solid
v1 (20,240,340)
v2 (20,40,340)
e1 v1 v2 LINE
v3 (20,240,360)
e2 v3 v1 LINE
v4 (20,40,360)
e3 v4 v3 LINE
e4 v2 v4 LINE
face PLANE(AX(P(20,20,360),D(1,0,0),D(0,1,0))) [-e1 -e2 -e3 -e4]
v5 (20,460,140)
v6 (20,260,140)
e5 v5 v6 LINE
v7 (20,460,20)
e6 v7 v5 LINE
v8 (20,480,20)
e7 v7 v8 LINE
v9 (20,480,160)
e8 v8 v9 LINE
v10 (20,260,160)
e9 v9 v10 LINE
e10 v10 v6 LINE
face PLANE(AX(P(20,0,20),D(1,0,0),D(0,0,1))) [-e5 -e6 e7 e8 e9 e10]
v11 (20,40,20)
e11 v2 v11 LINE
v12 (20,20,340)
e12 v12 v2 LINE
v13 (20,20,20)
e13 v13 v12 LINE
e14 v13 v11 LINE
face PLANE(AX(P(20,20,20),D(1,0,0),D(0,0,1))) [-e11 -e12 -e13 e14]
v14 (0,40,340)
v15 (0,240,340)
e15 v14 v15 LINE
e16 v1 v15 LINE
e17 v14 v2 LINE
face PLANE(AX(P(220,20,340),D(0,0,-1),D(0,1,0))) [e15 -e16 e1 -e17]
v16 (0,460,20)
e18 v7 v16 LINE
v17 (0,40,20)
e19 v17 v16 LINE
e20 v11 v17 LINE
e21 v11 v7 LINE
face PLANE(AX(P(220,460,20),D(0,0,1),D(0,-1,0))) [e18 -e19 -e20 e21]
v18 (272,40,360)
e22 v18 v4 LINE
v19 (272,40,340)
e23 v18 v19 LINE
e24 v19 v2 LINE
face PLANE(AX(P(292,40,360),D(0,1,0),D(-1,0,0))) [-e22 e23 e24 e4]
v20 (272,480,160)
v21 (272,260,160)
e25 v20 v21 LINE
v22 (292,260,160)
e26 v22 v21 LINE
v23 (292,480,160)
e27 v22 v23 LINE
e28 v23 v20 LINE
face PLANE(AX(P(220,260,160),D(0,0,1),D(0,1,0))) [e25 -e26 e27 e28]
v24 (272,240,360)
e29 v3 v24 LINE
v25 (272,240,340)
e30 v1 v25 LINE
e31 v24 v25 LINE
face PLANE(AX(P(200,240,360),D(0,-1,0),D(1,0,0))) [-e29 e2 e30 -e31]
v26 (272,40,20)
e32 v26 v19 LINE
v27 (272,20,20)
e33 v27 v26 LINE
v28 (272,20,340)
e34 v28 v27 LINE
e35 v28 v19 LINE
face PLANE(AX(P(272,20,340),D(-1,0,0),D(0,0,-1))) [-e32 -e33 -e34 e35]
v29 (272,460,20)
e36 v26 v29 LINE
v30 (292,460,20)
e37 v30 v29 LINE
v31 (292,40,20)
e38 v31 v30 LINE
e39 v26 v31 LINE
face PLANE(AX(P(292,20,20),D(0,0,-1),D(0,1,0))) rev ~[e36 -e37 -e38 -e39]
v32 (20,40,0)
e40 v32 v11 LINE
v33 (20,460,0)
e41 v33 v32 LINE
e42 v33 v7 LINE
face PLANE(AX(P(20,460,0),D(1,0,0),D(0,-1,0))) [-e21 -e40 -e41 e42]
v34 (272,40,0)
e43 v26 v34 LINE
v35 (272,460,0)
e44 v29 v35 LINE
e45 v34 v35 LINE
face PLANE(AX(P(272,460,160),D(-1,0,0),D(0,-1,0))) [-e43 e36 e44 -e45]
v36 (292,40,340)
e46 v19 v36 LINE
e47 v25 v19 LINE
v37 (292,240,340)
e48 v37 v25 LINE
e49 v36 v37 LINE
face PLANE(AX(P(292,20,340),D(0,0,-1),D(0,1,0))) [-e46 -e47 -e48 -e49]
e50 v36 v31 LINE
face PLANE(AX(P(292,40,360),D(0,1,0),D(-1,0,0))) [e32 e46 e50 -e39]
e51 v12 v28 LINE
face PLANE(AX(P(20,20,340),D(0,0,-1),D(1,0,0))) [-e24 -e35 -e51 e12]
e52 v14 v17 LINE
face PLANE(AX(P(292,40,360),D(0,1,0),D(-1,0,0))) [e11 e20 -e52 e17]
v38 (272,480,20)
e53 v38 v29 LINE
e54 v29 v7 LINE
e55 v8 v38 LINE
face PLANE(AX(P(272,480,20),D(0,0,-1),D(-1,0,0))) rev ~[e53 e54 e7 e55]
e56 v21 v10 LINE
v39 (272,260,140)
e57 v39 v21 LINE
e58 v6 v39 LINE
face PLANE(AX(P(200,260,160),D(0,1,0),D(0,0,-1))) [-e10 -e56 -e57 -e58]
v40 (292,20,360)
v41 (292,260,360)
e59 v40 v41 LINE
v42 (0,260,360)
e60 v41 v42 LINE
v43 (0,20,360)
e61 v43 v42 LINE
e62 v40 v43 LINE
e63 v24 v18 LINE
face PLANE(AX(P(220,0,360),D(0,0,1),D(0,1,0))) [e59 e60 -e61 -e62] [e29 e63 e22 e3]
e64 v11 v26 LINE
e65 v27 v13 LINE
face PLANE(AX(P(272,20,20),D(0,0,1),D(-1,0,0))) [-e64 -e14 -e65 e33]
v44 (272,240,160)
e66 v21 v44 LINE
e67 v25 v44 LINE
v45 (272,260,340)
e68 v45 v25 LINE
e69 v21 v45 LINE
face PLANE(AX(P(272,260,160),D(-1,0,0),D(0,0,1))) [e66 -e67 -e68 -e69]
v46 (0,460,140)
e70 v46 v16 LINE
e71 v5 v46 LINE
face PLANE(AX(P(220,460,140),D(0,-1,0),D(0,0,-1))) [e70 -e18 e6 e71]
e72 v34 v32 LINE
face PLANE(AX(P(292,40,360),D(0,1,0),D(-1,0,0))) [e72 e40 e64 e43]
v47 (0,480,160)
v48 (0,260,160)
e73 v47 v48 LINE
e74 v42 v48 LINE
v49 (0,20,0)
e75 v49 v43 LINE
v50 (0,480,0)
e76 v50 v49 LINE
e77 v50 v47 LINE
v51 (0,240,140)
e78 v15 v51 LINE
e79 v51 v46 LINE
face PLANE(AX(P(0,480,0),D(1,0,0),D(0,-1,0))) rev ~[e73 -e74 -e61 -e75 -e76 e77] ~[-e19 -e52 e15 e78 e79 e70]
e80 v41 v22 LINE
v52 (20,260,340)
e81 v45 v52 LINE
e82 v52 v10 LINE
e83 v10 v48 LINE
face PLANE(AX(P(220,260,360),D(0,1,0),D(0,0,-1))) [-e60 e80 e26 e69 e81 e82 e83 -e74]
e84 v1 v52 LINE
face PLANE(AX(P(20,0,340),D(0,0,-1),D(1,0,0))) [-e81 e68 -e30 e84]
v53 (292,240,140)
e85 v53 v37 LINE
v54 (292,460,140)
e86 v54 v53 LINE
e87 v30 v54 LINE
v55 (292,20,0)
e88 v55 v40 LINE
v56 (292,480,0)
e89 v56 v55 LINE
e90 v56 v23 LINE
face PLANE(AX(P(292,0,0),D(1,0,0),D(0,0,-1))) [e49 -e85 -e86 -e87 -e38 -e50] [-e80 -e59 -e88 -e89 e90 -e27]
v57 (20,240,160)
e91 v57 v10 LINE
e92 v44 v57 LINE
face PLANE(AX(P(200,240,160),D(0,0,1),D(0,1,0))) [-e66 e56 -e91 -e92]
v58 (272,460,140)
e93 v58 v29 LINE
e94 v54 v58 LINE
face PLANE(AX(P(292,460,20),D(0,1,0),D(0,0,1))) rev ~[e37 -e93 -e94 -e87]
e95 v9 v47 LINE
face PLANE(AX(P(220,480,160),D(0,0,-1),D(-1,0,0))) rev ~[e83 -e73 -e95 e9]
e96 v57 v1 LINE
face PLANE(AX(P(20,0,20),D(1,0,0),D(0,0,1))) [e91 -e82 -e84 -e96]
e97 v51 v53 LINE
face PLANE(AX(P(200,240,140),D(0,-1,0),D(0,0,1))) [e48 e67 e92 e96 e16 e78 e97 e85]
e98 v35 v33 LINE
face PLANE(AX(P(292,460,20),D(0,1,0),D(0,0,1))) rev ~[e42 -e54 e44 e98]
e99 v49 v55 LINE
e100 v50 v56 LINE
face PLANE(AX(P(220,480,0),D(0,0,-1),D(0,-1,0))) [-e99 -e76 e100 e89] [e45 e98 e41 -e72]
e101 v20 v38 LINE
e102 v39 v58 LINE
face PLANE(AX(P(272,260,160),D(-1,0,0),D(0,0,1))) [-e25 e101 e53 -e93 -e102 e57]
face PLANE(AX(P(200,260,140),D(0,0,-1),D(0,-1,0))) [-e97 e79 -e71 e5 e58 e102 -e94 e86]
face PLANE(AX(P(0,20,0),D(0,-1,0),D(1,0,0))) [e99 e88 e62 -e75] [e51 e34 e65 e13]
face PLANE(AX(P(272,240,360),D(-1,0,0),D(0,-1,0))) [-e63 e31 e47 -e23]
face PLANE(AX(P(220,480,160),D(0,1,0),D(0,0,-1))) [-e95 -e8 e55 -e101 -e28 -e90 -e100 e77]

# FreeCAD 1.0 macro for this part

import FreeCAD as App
import Part
import Sketcher

doc = App.newDocument("Part")
body = doc.addObject("PartDesign::Body", "Body")

# Sketch on XY plane
sketch1 = doc.addObject("Sketcher::SketchObject", "Sketch")
body.addObject(sketch1)
sketch1.AttachmentSupport = (doc.XY_Plane, [""])
sketch1.MapMode = "FlatFace"
sketch1.addGeometry(Part.LineSegment(App.Vector(0, 480, 0), App.Vector(0, 0, 0)), False)
sketch1.addGeometry(Part.LineSegment(App.Vector(0, 0, 0), App.Vector(220, 0, 0)), False)
sketch1.addGeometry(Part.LineSegment(App.Vector(220, 0, 0), App.Vector(220, 480, 0)), False)
sketch1.addGeometry(Part.LineSegment(App.Vector(220, 480, 0), App.Vector(0, 480, 0)), False)
sketch1.addConstraint(Sketcher.Constraint("Coincident", 0, 2, 1, 1))
sketch1.addConstraint(Sketcher.Constraint("Coincident", 1, 2, 2, 1))
sketch1.addConstraint(Sketcher.Constraint("Coincident", 2, 2, 3, 1))
sketch1.addConstraint(Sketcher.Constraint("Coincident", 3, 2, 0, 1))
sketch1.addConstraint(Sketcher.Constraint("Vertical", 0))
sketch1.addConstraint(Sketcher.Constraint("Horizontal", 1))
sketch1.addConstraint(Sketcher.Constraint("Vertical", 2))
sketch1.addConstraint(Sketcher.Constraint("Horizontal", 3))
sketch1.addConstraint(Sketcher.Constraint("Coincident", 0, 2, -1, 1))
sketch1.addConstraint(Sketcher.Constraint("DistanceX", 1, 1, 1, 2, 220.0))
sketch1.addConstraint(Sketcher.Constraint("DistanceY", 0, 2, 0, 1, 480.0))
pad1 = doc.addObject("PartDesign::Pad", "Pad")
body.addObject(pad1)
pad1.Profile = sketch1
pad1.Length = 360

# Sketch on XZ plane
sketch2 = doc.addObject("Sketcher::SketchObject", "Sketch001")
body.addObject(sketch2)
sketch2.AttachmentSupport = (doc.XZ_Plane, [""])
sketch2.MapMode = "FlatFace"
sketch2.AttachmentOffset = App.Placement(App.Vector(0, 0, -480), App.Rotation())
sketch2.addGeometry(Part.LineSegment(App.Vector(220, 360, 0), App.Vector(220, 160, 0)), False)
sketch2.addGeometry(Part.LineSegment(App.Vector(220, 160, 0), App.Vector(0, 160, 0)), False)
sketch2.addGeometry(Part.LineSegment(App.Vector(0, 160, 0), App.Vector(0, 360, 0)), False)
sketch2.addGeometry(Part.LineSegment(App.Vector(0, 360, 0), App.Vector(220, 360, 0)), False)
sketch2.addConstraint(Sketcher.Constraint("Coincident", 0, 2, 1, 1))
sketch2.addConstraint(Sketcher.Constraint("Coincident", 1, 2, 2, 1))
sketch2.addConstraint(Sketcher.Constraint("Coincident", 2, 2, 3, 1))
sketch2.addConstraint(Sketcher.Constraint("Coincident", 3, 2, 0, 1))
sketch2.addConstraint(Sketcher.Constraint("Vertical", 0))
sketch2.addConstraint(Sketcher.Constraint("Horizontal", 1))
sketch2.addConstraint(Sketcher.Constraint("Vertical", 2))
sketch2.addConstraint(Sketcher.Constraint("Horizontal", 3))
sketch2.addConstraint(Sketcher.Constraint("PointOnObject", 1, 2, -2))
sketch2.addConstraint(Sketcher.Constraint("DistanceY", -1, 1, 0, 2, 160.0))
sketch2.addConstraint(Sketcher.Constraint("DistanceX", 1, 2, 1, 1, 220.0))
sketch2.addConstraint(Sketcher.Constraint("DistanceY", 0, 2, 0, 1, 200.0))
pocket1 = doc.addObject("PartDesign::Pocket", "Pocket")
body.addObject(pocket1)
pocket1.Profile = sketch2
pocket1.Length = 220
pocket1.Reversed = True

# Sketch on YZ plane
sketch3 = doc.addObject("Sketcher::SketchObject", "Sketch002")
body.addObject(sketch3)
sketch3.AttachmentSupport = (doc.YZ_Plane, [""])
sketch3.MapMode = "FlatFace"
sketch3.AttachmentOffset = App.Placement(App.Vector(0, 0, 220), App.Rotation())
sketch3.addGeometry(Part.LineSegment(App.Vector(20, 20, 0), App.Vector(460, 20, 0)), False)
sketch3.addGeometry(Part.LineSegment(App.Vector(460, 20, 0), App.Vector(460, 140, 0)), False)
sketch3.addGeometry(Part.LineSegment(App.Vector(460, 140, 0), App.Vector(240, 140, 0)), False)
sketch3.addGeometry(Part.LineSegment(App.Vector(240, 140, 0), App.Vector(240, 340, 0)), False)
sketch3.addGeometry(Part.LineSegment(App.Vector(240, 340, 0), App.Vector(20, 340, 0)), False)
sketch3.addGeometry(Part.LineSegment(App.Vector(20, 340, 0), App.Vector(20, 20, 0)), False)
sketch3.addConstraint(Sketcher.Constraint("Coincident", 0, 2, 1, 1))
sketch3.addConstraint(Sketcher.Constraint("Coincident", 1, 2, 2, 1))
sketch3.addConstraint(Sketcher.Constraint("Coincident", 2, 2, 3, 1))
sketch3.addConstraint(Sketcher.Constraint("Coincident", 3, 2, 4, 1))
sketch3.addConstraint(Sketcher.Constraint("Coincident", 4, 2, 5, 1))
sketch3.addConstraint(Sketcher.Constraint("Coincident", 5, 2, 0, 1))
sketch3.addConstraint(Sketcher.Constraint("Horizontal", 0))
sketch3.addConstraint(Sketcher.Constraint("Vertical", 1))
sketch3.addConstraint(Sketcher.Constraint("Horizontal", 2))
sketch3.addConstraint(Sketcher.Constraint("Vertical", 3))
sketch3.addConstraint(Sketcher.Constraint("Horizontal", 4))
sketch3.addConstraint(Sketcher.Constraint("Vertical", 5))
sketch3.addConstraint(Sketcher.Constraint("Equal", 2, 4))
sketch3.addConstraint(Sketcher.Constraint("DistanceY", -1, 1, 0, 2, 20.0))
sketch3.addConstraint(Sketcher.Constraint("DistanceX", -1, 1, 4, 2, 20.0))
sketch3.addConstraint(Sketcher.Constraint("DistanceX", 0, 1, 0, 2, 440.0))
sketch3.addConstraint(Sketcher.Constraint("DistanceY", 1, 1, 1, 2, 120.0))
sketch3.addConstraint(Sketcher.Constraint("DistanceY", 3, 1, 3, 2, 200.0))
pocket2 = doc.addObject("PartDesign::Pocket", "Pocket001")
body.addObject(pocket2)
pocket2.Profile = sketch3
pocket2.Length = 220

# Sketch on XY plane
sketch4 = doc.addObject("Sketcher::SketchObject", "Sketch003")
body.addObject(sketch4)
sketch4.AttachmentSupport = (doc.XY_Plane, [""])
sketch4.MapMode = "FlatFace"
sketch4.AttachmentOffset = App.Placement(App.Vector(0, 0, 360), App.Rotation())
sketch4.addGeometry(Part.LineSegment(App.Vector(200, 240, 0), App.Vector(20, 240, 0)), False)
sketch4.addGeometry(Part.LineSegment(App.Vector(20, 240, 0), App.Vector(20, 20, 0)), False)
sketch4.addGeometry(Part.LineSegment(App.Vector(20, 20, 0), App.Vector(200, 20, 0)), False)
sketch4.addGeometry(Part.LineSegment(App.Vector(200, 20, 0), App.Vector(200, 240, 0)), False)
sketch4.addConstraint(Sketcher.Constraint("Coincident", 0, 2, 1, 1))
sketch4.addConstraint(Sketcher.Constraint("Coincident", 1, 2, 2, 1))
sketch4.addConstraint(Sketcher.Constraint("Coincident", 2, 2, 3, 1))
sketch4.addConstraint(Sketcher.Constraint("Coincident", 3, 2, 0, 1))
sketch4.addConstraint(Sketcher.Constraint("Horizontal", 0))
sketch4.addConstraint(Sketcher.Constraint("Vertical", 1))
sketch4.addConstraint(Sketcher.Constraint("Horizontal", 2))
sketch4.addConstraint(Sketcher.Constraint("Vertical", 3))
sketch4.addConstraint(Sketcher.Constraint("DistanceX", -1, 1, 0, 2, 20.0))
sketch4.addConstraint(Sketcher.Constraint("DistanceY", -1, 1, 1, 2, 20.0))
sketch4.addConstraint(Sketcher.Constraint("DistanceX", 0, 2, 0, 1, 180.0))
sketch4.addConstraint(Sketcher.Constraint("DistanceY", 1, 2, 1, 1, 220.0))
pocket3 = doc.addObject("PartDesign::Pocket", "Pocket002")
body.addObject(pocket3)
pocket3.Profile = sketch4
pocket3.Length = 600

# Sketch on XZ plane
sketch5 = doc.addObject("Sketcher::SketchObject", "Sketch004")
body.addObject(sketch5)
sketch5.AttachmentSupport = (doc.XZ_Plane, [""])
sketch5.MapMode = "FlatFace"
sketch5.addGeometry(Part.LineSegment(App.Vector(200, 340, 0), App.Vector(20, 340, 0)), False)
sketch5.addGeometry(Part.LineSegment(App.Vector(20, 340, 0), App.Vector(20, 20, 0)), False)
sketch5.addGeometry(Part.LineSegment(App.Vector(20, 20, 0), App.Vector(200, 20, 0)), False)
sketch5.addGeometry(Part.LineSegment(App.Vector(200, 20, 0), App.Vector(200, 340, 0)), False)
sketch5.addConstraint(Sketcher.Constraint("Coincident", 0, 2, 1, 1))
sketch5.addConstraint(Sketcher.Constraint("Coincident", 1, 2, 2, 1))
sketch5.addConstraint(Sketcher.Constraint("Coincident", 2, 2, 3, 1))
sketch5.addConstraint(Sketcher.Constraint("Coincident", 3, 2, 0, 1))
sketch5.addConstraint(Sketcher.Constraint("Horizontal", 0))
sketch5.addConstraint(Sketcher.Constraint("Vertical", 1))
sketch5.addConstraint(Sketcher.Constraint("Horizontal", 2))
sketch5.addConstraint(Sketcher.Constraint("Vertical", 3))
sketch5.addConstraint(Sketcher.Constraint("DistanceX", 0, 2, 0, 1, 180.0))
sketch5.addConstraint(Sketcher.Constraint("DistanceY", 1, 2, 1, 1, 320.0))
sketch5.addConstraint(Sketcher.Constraint("DistanceX", -1, 1, 0, 2, 20.0))
sketch5.addConstraint(Sketcher.Constraint("DistanceY", -1, 1, 0, 2, 340.0))
pocket4 = doc.addObject("PartDesign::Pocket", "Pocket003")
body.addObject(pocket4)
pocket4.Profile = sketch5
pocket4.Length = 900

# Sketch on XY plane
sketch6 = doc.addObject("Sketcher::SketchObject", "Sketch005")
body.addObject(sketch6)
sketch6.AttachmentSupport = (doc.XY_Plane, [""])
sketch6.MapMode = "FlatFace"
sketch6.addGeometry(Part.LineSegment(App.Vector(20, 240, 0), App.Vector(20, 460, 0)), False)
sketch6.addGeometry(Part.LineSegment(App.Vector(20, 460, 0), App.Vector(200, 460, 0)), False)
sketch6.addGeometry(Part.LineSegment(App.Vector(200, 460, 0), App.Vector(200, 240, 0)), False)
sketch6.addGeometry(Part.LineSegment(App.Vector(200, 240, 0), App.Vector(20, 240, 0)), False)
sketch6.addConstraint(Sketcher.Constraint("Coincident", 0, 2, 1, 1))
sketch6.addConstraint(Sketcher.Constraint("Coincident", 1, 2, 2, 1))
sketch6.addConstraint(Sketcher.Constraint("Coincident", 2, 2, 3, 1))
sketch6.addConstraint(Sketcher.Constraint("Coincident", 3, 2, 0, 1))
sketch6.addConstraint(Sketcher.Constraint("Vertical", 0))
sketch6.addConstraint(Sketcher.Constraint("Horizontal", 1))
sketch6.addConstraint(Sketcher.Constraint("Vertical", 2))
sketch6.addConstraint(Sketcher.Constraint("Horizontal", 3))
sketch6.addConstraint(Sketcher.Constraint("DistanceX", 1, 1, 1, 2, 180.0))
sketch6.addConstraint(Sketcher.Constraint("DistanceY", 0, 1, 0, 2, 220.0))
sketch6.addConstraint(Sketcher.Constraint("DistanceX", -1, 1, 0, 2, 20.0))
sketch6.addConstraint(Sketcher.Constraint("DistanceY", -1, 1, 0, 2, 460.0))
pocket5 = doc.addObject("PartDesign::Pocket", "Pocket004")
body.addObject(pocket5)
pocket5.Profile = sketch6
pocket5.Length = 80
pocket5.Reversed = True

# Sketch on YZ plane
sketch7 = doc.addObject("Sketcher::SketchObject", "Sketch006")
body.addObject(sketch7)
sketch7.AttachmentSupport = (doc.YZ_Plane, [""])
sketch7.MapMode = "FlatFace"
sketch7.AttachmentOffset = App.Placement(App.Vector(0, 0, 20), App.Rotation())
sketch7.addGeometry(Part.LineSegment(App.Vector(240, 140, 0), App.Vector(260, 140, 0)), False)
sketch7.addGeometry(Part.LineSegment(App.Vector(260, 140, 0), App.Vector(260, 160, 0)), False)
sketch7.addGeometry(Part.LineSegment(App.Vector(260, 160, 0), App.Vector(240, 160, 0)), False)
sketch7.addGeometry(Part.LineSegment(App.Vector(240, 160, 0), App.Vector(240, 140, 0)), False)
sketch7.addConstraint(Sketcher.Constraint("Coincident", 0, 2, 1, 1))
sketch7.addConstraint(Sketcher.Constraint("Coincident", 1, 2, 2, 1))
sketch7.addConstraint(Sketcher.Constraint("Coincident", 2, 2, 3, 1))
sketch7.addConstraint(Sketcher.Constraint("Coincident", 3, 2, 0, 1))
sketch7.addConstraint(Sketcher.Constraint("Horizontal", 0))
sketch7.addConstraint(Sketcher.Constraint("Vertical", 1))
sketch7.addConstraint(Sketcher.Constraint("Horizontal", 2))
sketch7.addConstraint(Sketcher.Constraint("Vertical", 3))
sketch7.addConstraint(Sketcher.Constraint("Equal", 2, 1))
sketch7.addConstraint(Sketcher.Constraint("DistanceX", 0, 1, 0, 2, 20.0))
sketch7.addConstraint(Sketcher.Constraint("DistanceX", -1, 1, 0, 2, 260.0))
sketch7.addConstraint(Sketcher.Constraint("DistanceY", -1, 1, 0, 2, 140.0))
pad2 = doc.addObject("PartDesign::Pad", "Pad001")
body.addObject(pad2)
pad2.Profile = sketch7
pad2.Length = 180

# Sketch on YZ plane
sketch8 = doc.addObject("Sketcher::SketchObject", "Sketch007")
body.addObject(sketch8)
sketch8.AttachmentSupport = (doc.YZ_Plane, [""])
sketch8.MapMode = "FlatFace"
sketch8.AttachmentOffset = App.Placement(App.Vector(0, 0, 220), App.Rotation())
sketch8.addGeometry(Part.LineSegment(App.Vector(260, 360, 0), App.Vector(0, 360, 0)), False)
sketch8.addGeometry(Part.LineSegment(App.Vector(0, 360, 0), App.Vector(0, 0, 0)), False)
sketch8.addGeometry(Part.LineSegment(App.Vector(0, 0, 0), App.Vector(480, 0, 0)), False)
sketch8.addGeometry(Part.LineSegment(App.Vector(480, 0, 0), App.Vector(480, 160, 0)), False)
sketch8.addGeometry(Part.LineSegment(App.Vector(480, 160, 0), App.Vector(260, 160, 0)), False)
sketch8.addGeometry(Part.LineSegment(App.Vector(260, 160, 0), App.Vector(260, 360, 0)), False)
sketch8.addConstraint(Sketcher.Constraint("Coincident", 0, 2, 1, 1))
sketch8.addConstraint(Sketcher.Constraint("Coincident", 1, 2, 2, 1))
sketch8.addConstraint(Sketcher.Constraint("Coincident", 2, 2, 3, 1))
sketch8.addConstraint(Sketcher.Constraint("Coincident", 3, 2, 4, 1))
sketch8.addConstraint(Sketcher.Constraint("Coincident", 4, 2, 5, 1))
sketch8.addConstraint(Sketcher.Constraint("Coincident", 5, 2, 0, 1))
sketch8.addConstraint(Sketcher.Constraint("Horizontal", 0))
sketch8.addConstraint(Sketcher.Constraint("Vertical", 1))
sketch8.addConstraint(Sketcher.Constraint("Horizontal", 2))
sketch8.addConstraint(Sketcher.Constraint("Vertical", 3))
sketch8.addConstraint(Sketcher.Constraint("Horizontal", 4))
sketch8.addConstraint(Sketcher.Constraint("Vertical", 5))
sketch8.addConstraint(Sketcher.Constraint("Coincident", 1, 2, -1, 1))
sketch8.addConstraint(Sketcher.Constraint("DistanceX", 0, 2, 0, 1, 260.0))
sketch8.addConstraint(Sketcher.Constraint("DistanceX", 2, 1, 2, 2, 480.0))
sketch8.addConstraint(Sketcher.Constraint("DistanceY", 1, 2, 1, 1, 360.0))
sketch8.addConstraint(Sketcher.Constraint("DistanceY", 3, 1, 3, 2, 160.0))
pad3 = doc.addObject("PartDesign::Pad", "Pad002")
body.addObject(pad3)
pad3.Profile = sketch8
pad3.Length = 72

# Sketch on YZ plane
sketch9 = doc.addObject("Sketcher::SketchObject", "Sketch008")
body.addObject(sketch9)
sketch9.AttachmentSupport = (doc.YZ_Plane, [""])
sketch9.MapMode = "FlatFace"
sketch9.AttachmentOffset = App.Placement(App.Vector(0, 0, 292), App.Rotation())
sketch9.addGeometry(Part.LineSegment(App.Vector(240, 340, 0), App.Vector(20, 340, 0)), False)
sketch9.addGeometry(Part.LineSegment(App.Vector(20, 340, 0), App.Vector(20, 20, 0)), False)
sketch9.addGeometry(Part.LineSegment(App.Vector(20, 20, 0), App.Vector(460, 20, 0)), False)
sketch9.addGeometry(Part.LineSegment(App.Vector(460, 20, 0), App.Vector(460, 140, 0)), False)
sketch9.addGeometry(Part.LineSegment(App.Vector(460, 140, 0), App.Vector(240, 140, 0)), False)
sketch9.addGeometry(Part.LineSegment(App.Vector(240, 140, 0), App.Vector(240, 340, 0)), False)
sketch9.addConstraint(Sketcher.Constraint("Coincident", 0, 2, 1, 1))
sketch9.addConstraint(Sketcher.Constraint("Coincident", 1, 2, 2, 1))
sketch9.addConstraint(Sketcher.Constraint("Coincident", 2, 2, 3, 1))
sketch9.addConstraint(Sketcher.Constraint("Coincident", 3, 2, 4, 1))
sketch9.addConstraint(Sketcher.Constraint("Coincident", 4, 2, 5, 1))
sketch9.addConstraint(Sketcher.Constraint("Coincident", 5, 2, 0, 1))
sketch9.addConstraint(Sketcher.Constraint("Horizontal", 0))
sketch9.addConstraint(Sketcher.Constraint("Vertical", 1))
sketch9.addConstraint(Sketcher.Constraint("Horizontal", 2))
sketch9.addConstraint(Sketcher.Constraint("Vertical", 3))
sketch9.addConstraint(Sketcher.Constraint("Horizontal", 4))
sketch9.addConstraint(Sketcher.Constraint("Vertical", 5))
sketch9.addConstraint(Sketcher.Constraint("Equal", 0, 4))
sketch9.addConstraint(Sketcher.Constraint("DistanceX", 0, 2, 0, 1, 220.0))
sketch9.addConstraint(Sketcher.Constraint("DistanceY", 1, 2, 1, 1, 320.0))
sketch9.addConstraint(Sketcher.Constraint("DistanceY", 3, 1, 3, 2, 120.0))
sketch9.addConstraint(Sketcher.Constraint("DistanceX", -1, 1, 0, 2, 20.0))
sketch9.addConstraint(Sketcher.Constraint("DistanceY", -1, 1, 0, 2, 340.0))
pocket6 = doc.addObject("PartDesign::Pocket", "Pocket005")
body.addObject(pocket6)
pocket6.Profile = sketch9
pocket6.Length = 150

# Sketch on XY plane
sketch10 = doc.addObject("Sketcher::SketchObject", "Sketch009")
body.addObject(sketch10)
sketch10.AttachmentSupport = (doc.XY_Plane, [""])
sketch10.MapMode = "FlatFace"
sketch10.AttachmentOffset = App.Placement(App.Vector(0, 0, 360), App.Rotation())
sketch10.addGeometry(Part.LineSegment(App.Vector(200, 20, 0), App.Vector(272, 20, 0)), False)
sketch10.addGeometry(Part.LineSegment(App.Vector(272, 20, 0), App.Vector(272, 240, 0)), False)
sketch10.addGeometry(Part.LineSegment(App.Vector(272, 240, 0), App.Vector(200, 240, 0)), False)
sketch10.addGeometry(Part.LineSegment(App.Vector(200, 240, 0), App.Vector(200, 20, 0)), False)
sketch10.addConstraint(Sketcher.Constraint("Coincident", 0, 2, 1, 1))
sketch10.addConstraint(Sketcher.Constraint("Coincident", 1, 2, 2, 1))
sketch10.addConstraint(Sketcher.Constraint("Coincident", 2, 2, 3, 1))
sketch10.addConstraint(Sketcher.Constraint("Coincident", 3, 2, 0, 1))
sketch10.addConstraint(Sketcher.Constraint("Horizontal", 0))
sketch10.addConstraint(Sketcher.Constraint("Vertical", 1))
sketch10.addConstraint(Sketcher.Constraint("Horizontal", 2))
sketch10.addConstraint(Sketcher.Constraint("Vertical", 3))
sketch10.addConstraint(Sketcher.Constraint("DistanceY", -1, 1, 0, 2, 20.0))
sketch10.addConstraint(Sketcher.Constraint("DistanceX", 0, 1, 0, 2, 72.0))
sketch10.addConstraint(Sketcher.Constraint("DistanceY", 1, 1, 1, 2, 220.0))
sketch10.addConstraint(Sketcher.Constraint("DistanceX", -1, 1, 0, 2, 272.0))
pocket7 = doc.addObject("PartDesign::Pocket", "Pocket006")
body.addObject(pocket7)
pocket7.Profile = sketch10
pocket7.Length = 900

# Sketch on XZ plane
sketch11 = doc.addObject("Sketcher::SketchObject", "Sketch010")
body.addObject(sketch11)
sketch11.AttachmentSupport = (doc.XZ_Plane, [""])
sketch11.MapMode = "FlatFace"
sketch11.AttachmentOffset = App.Placement(App.Vector(0, 0, -260), App.Rotation())
sketch11.addGeometry(Part.LineSegment(App.Vector(200, 160, 0), App.Vector(200, 340, 0)), False)
sketch11.addGeometry(Part.LineSegment(App.Vector(200, 340, 0), App.Vector(272, 340, 0)), False)
sketch11.addGeometry(Part.LineSegment(App.Vector(272, 340, 0), App.Vector(272, 160, 0)), False)
sketch11.addGeometry(Part.LineSegment(App.Vector(272, 160, 0), App.Vector(200, 160, 0)), False)
sketch11.addConstraint(Sketcher.Constraint("Coincident", 0, 2, 1, 1))
sketch11.addConstraint(Sketcher.Constraint("Coincident", 1, 2, 2, 1))
sketch11.addConstraint(Sketcher.Constraint("Coincident", 2, 2, 3, 1))
sketch11.addConstraint(Sketcher.Constraint("Coincident", 3, 2, 0, 1))
sketch11.addConstraint(Sketcher.Constraint("Vertical", 0))
sketch11.addConstraint(Sketcher.Constraint("Horizontal", 1))
sketch11.addConstraint(Sketcher.Constraint("Vertical", 2))
sketch11.addConstraint(Sketcher.Constraint("Horizontal", 3))
sketch11.addConstraint(Sketcher.Constraint("DistanceX", 1, 1, 1, 2, 72.0))
sketch11.addConstraint(Sketcher.Constraint("DistanceY", 0, 1, 0, 2, 180.0))
sketch11.addConstraint(Sketcher.Constraint("DistanceX", -1, 1, 0, 2, 200.0))
sketch11.addConstraint(Sketcher.Constraint("DistanceY", -1, 1, 0, 2, 340.0))
pocket8 = doc.addObject("PartDesign::Pocket", "Pocket007")
body.addObject(pocket8)
pocket8.Profile = sketch11
pocket8.Length = 900
pocket8.Reversed = True

# Sketch on XY plane
sketch12 = doc.addObject("Sketcher::SketchObject", "Sketch011")
body.addObject(sketch12)
sketch12.AttachmentSupport = (doc.XY_Plane, [""])
sketch12.MapMode = "FlatFace"
sketch12.AttachmentOffset = App.Placement(App.Vector(0, 0, 160), App.Rotation())
sketch12.addGeometry(Part.LineSegment(App.Vector(272, 460, 0), App.Vector(200, 460, 0)), False)
sketch12.addGeometry(Part.LineSegment(App.Vector(200, 460, 0), App.Vector(200, 260, 0)), False)
sketch12.addGeometry(Part.LineSegment(App.Vector(200, 260, 0), App.Vector(272, 260, 0)), False)
sketch12.addGeometry(Part.LineSegment(App.Vector(272, 260, 0), App.Vector(272, 460, 0)), False)
sketch12.addConstraint(Sketcher.Constraint("Coincident", 0, 2, 1, 1))
sketch12.addConstraint(Sketcher.Constraint("Coincident", 1, 2, 2, 1))
sketch12.addConstraint(Sketcher.Constraint("Coincident", 2, 2, 3, 1))
sketch12.addConstraint(Sketcher.Constraint("Coincident", 3, 2, 0, 1))
sketch12.addConstraint(Sketcher.Constraint("Horizontal", 0))
sketch12.addConstraint(Sketcher.Constraint("Vertical", 1))
sketch12.addConstraint(Sketcher.Constraint("Horizontal", 2))
sketch12.addConstraint(Sketcher.Constraint("Vertical", 3))
sketch12.addConstraint(Sketcher.Constraint("DistanceX", 0, 2, 0, 1, 72.0))
sketch12.addConstraint(Sketcher.Constraint("DistanceY", 1, 2, 1, 1, 200.0))
sketch12.addConstraint(Sketcher.Constraint("DistanceX", -1, 1, 0, 2, 200.0))
sketch12.addConstraint(Sketcher.Constraint("DistanceY", -1, 1, 0, 2, 460.0))
pocket9 = doc.addObject("PartDesign::Pocket", "Pocket008")
body.addObject(pocket9)
pocket9.Profile = sketch12
pocket9.Length = 900

# Sketch on XZ plane
sketch13 = doc.addObject("Sketcher::SketchObject", "Sketch012")
body.addObject(sketch13)
sketch13.AttachmentSupport = (doc.XZ_Plane, [""])
sketch13.MapMode = "FlatFace"
sketch13.AttachmentOffset = App.Placement(App.Vector(0, 0, -480), App.Rotation())
sketch13.addGeometry(Part.LineSegment(App.Vector(272, 20, 0), App.Vector(200, 20, 0)), False)
sketch13.addGeometry(Part.LineSegment(App.Vector(200, 20, 0), App.Vector(200, 160, 0)), False)
sketch13.addGeometry(Part.LineSegment(App.Vector(200, 160, 0), App.Vector(272, 160, 0)), False)
sketch13.addGeometry(Part.LineSegment(App.Vector(272, 160, 0), App.Vector(272, 20, 0)), False)
sketch13.addConstraint(Sketcher.Constraint("Coincident", 0, 2, 1, 1))
sketch13.addConstraint(Sketcher.Constraint("Coincident", 1, 2, 2, 1))
sketch13.addConstraint(Sketcher.Constraint("Coincident", 2, 2, 3, 1))
sketch13.addConstraint(Sketcher.Constraint("Coincident", 3, 2, 0, 1))
sketch13.addConstraint(Sketcher.Constraint("Horizontal", 0))
sketch13.addConstraint(Sketcher.Constraint("Vertical", 1))
sketch13.addConstraint(Sketcher.Constraint("Horizontal", 2))
sketch13.addConstraint(Sketcher.Constraint("Vertical", 3))
sketch13.addConstraint(Sketcher.Constraint("DistanceX", 0, 2, 0, 1, 72.0))
sketch13.addConstraint(Sketcher.Constraint("DistanceY", 1, 1, 1, 2, 140.0))
sketch13.addConstraint(Sketcher.Constraint("DistanceX", -1, 1, 0, 2, 200.0))
sketch13.addConstraint(Sketcher.Constraint("DistanceY", -1, 1, 0, 2, 20.0))
pocket10 = doc.addObject("PartDesign::Pocket", "Pocket009")
body.addObject(pocket10)
pocket10.Profile = sketch13
pocket10.Length = 900
pocket10.Reversed = True

# Sketch on YZ plane
sketch14 = doc.addObject("Sketcher::SketchObject", "Sketch013")
body.addObject(sketch14)
sketch14.AttachmentSupport = (doc.YZ_Plane, [""])
sketch14.MapMode = "FlatFace"
sketch14.AttachmentOffset = App.Placement(App.Vector(0, 0, 200), App.Rotation())
sketch14.addGeometry(Part.LineSegment(App.Vector(240, 160, 0), App.Vector(240, 140, 0)), False)
sketch14.addGeometry(Part.LineSegment(App.Vector(240, 140, 0), App.Vector(260, 140, 0)), False)
sketch14.addGeometry(Part.LineSegment(App.Vector(260, 140, 0), App.Vector(260, 160, 0)), False)
sketch14.addGeometry(Part.LineSegment(App.Vector(260, 160, 0), App.Vector(240, 160, 0)), False)
sketch14.addConstraint(Sketcher.Constraint("Coincident", 0, 2, 1, 1))
sketch14.addConstraint(Sketcher.Constraint("Coincident", 1, 2, 2, 1))
sketch14.addConstraint(Sketcher.Constraint("Coincident", 2, 2, 3, 1))
sketch14.addConstraint(Sketcher.Constraint("Coincident", 3, 2, 0, 1))
sketch14.addConstraint(Sketcher.Constraint("Vertical", 0))
sketch14.addConstraint(Sketcher.Constraint("Horizontal", 1))
sketch14.addConstraint(Sketcher.Constraint("Vertical", 2))
sketch14.addConstraint(Sketcher.Constraint("Horizontal", 3))
sketch14.addConstraint(Sketcher.Constraint("Equal", 3, 0))
sketch14.addConstraint(Sketcher.Constraint("DistanceX", 1, 1, 1, 2, 20.0))
sketch14.addConstraint(Sketcher.Constraint("DistanceX", -1, 1, 0, 2, 240.0))
sketch14.addConstraint(Sketcher.Constraint("DistanceY", -1, 1, 0, 2, 140.0))
pad4 = doc.addObject("PartDesign::Pad", "Pad003")
body.addObject(pad4)
pad4.Profile = sketch14
pad4.Type = "UpToFirst"

# Sketch on YZ plane
sketch15 = doc.addObject("Sketcher::SketchObject", "Sketch014")
body.addObject(sketch15)
sketch15.AttachmentSupport = (doc.YZ_Plane, [""])
sketch15.MapMode = "FlatFace"
sketch15.AttachmentOffset = App.Placement(App.Vector(0, 0, 200), App.Rotation())
sketch15.addGeometry(Part.LineSegment(App.Vector(240, 20, 0), App.Vector(260, 20, 0)), False)
sketch15.addGeometry(Part.LineSegment(App.Vector(260, 20, 0), App.Vector(260, 0, 0)), False)
sketch15.addGeometry(Part.LineSegment(App.Vector(260, 0, 0), App.Vector(240, 0, 0)), False)
sketch15.addGeometry(Part.LineSegment(App.Vector(240, 0, 0), App.Vector(240, 20, 0)), False)
sketch15.addConstraint(Sketcher.Constraint("Coincident", 0, 2, 1, 1))
sketch15.addConstraint(Sketcher.Constraint("Coincident", 1, 2, 2, 1))
sketch15.addConstraint(Sketcher.Constraint("Coincident", 2, 2, 3, 1))
sketch15.addConstraint(Sketcher.Constraint("Coincident", 3, 2, 0, 1))
sketch15.addConstraint(Sketcher.Constraint("Horizontal", 0))
sketch15.addConstraint(Sketcher.Constraint("Vertical", 1))
sketch15.addConstraint(Sketcher.Constraint("Horizontal", 2))
sketch15.addConstraint(Sketcher.Constraint("Vertical", 3))
sketch15.addConstraint(Sketcher.Constraint("PointOnObject", 1, 2, -1))
sketch15.addConstraint(Sketcher.Constraint("Equal", 2, 1))
sketch15.addConstraint(Sketcher.Constraint("DistanceX", 0, 1, 0, 2, 20.0))
sketch15.addConstraint(Sketcher.Constraint("DistanceX", -1, 1, 0, 2, 260.0))
pocket11 = doc.addObject("PartDesign::Pocket", "Pocket010")
body.addObject(pocket11)
pocket11.Profile = sketch15
pocket11.Length = 72
pocket11.Reversed = True

# Sketch on XZ plane
sketch16 = doc.addObject("Sketcher::SketchObject", "Sketch015")
body.addObject(sketch16)
sketch16.AttachmentSupport = (doc.XZ_Plane, [""])
sketch16.MapMode = "FlatFace"
sketch16.addGeometry(Part.LineSegment(App.Vector(292, 0, 0), App.Vector(292, 360, 0)), False)
sketch16.addGeometry(Part.LineSegment(App.Vector(292, 360, 0), App.Vector(0, 360, 0)), False)
sketch16.addGeometry(Part.LineSegment(App.Vector(0, 360, 0), App.Vector(0, 0, 0)), False)
sketch16.addGeometry(Part.LineSegment(App.Vector(0, 0, 0), App.Vector(292, 0, 0)), False)
sketch16.addConstraint(Sketcher.Constraint("Coincident", 0, 2, 1, 1))
sketch16.addConstraint(Sketcher.Constraint("Coincident", 1, 2, 2, 1))
sketch16.addConstraint(Sketcher.Constraint("Coincident", 2, 2, 3, 1))
sketch16.addConstraint(Sketcher.Constraint("Coincident", 3, 2, 0, 1))
sketch16.addConstraint(Sketcher.Constraint("Vertical", 0))
sketch16.addConstraint(Sketcher.Constraint("Horizontal", 1))
sketch16.addConstraint(Sketcher.Constraint("Vertical", 2))
sketch16.addConstraint(Sketcher.Constraint("Horizontal", 3))
sketch16.addConstraint(Sketcher.Constraint("Coincident", 2, 2, -1, 1))
sketch16.addConstraint(Sketcher.Constraint("DistanceX", 1, 2, 1, 1, 292.0))
sketch16.addConstraint(Sketcher.Constraint("DistanceY", 0, 1, 0, 2, 360.0))
pocket12 = doc.addObject("PartDesign::Pocket", "Pocket011")
body.addObject(pocket12)
pocket12.Profile = sketch16
pocket12.Length = 20

# Sketch on XY plane
sketch17 = doc.addObject("Sketcher::SketchObject", "Sketch016")
body.addObject(sketch17)
sketch17.AttachmentSupport = (doc.XY_Plane, [""])
sketch17.MapMode = "FlatFace"
sketch17.AttachmentOffset = App.Placement(App.Vector(0, 0, 360), App.Rotation())
sketch17.addGeometry(Part.LineSegment(App.Vector(0, 40, 0), App.Vector(0, 20, 0)), False)
sketch17.addGeometry(Part.LineSegment(App.Vector(0, 20, 0), App.Vector(292, 20, 0)), False)
sketch17.addGeometry(Part.LineSegment(App.Vector(292, 20, 0), App.Vector(292, 40, 0)), False)
sketch17.addGeometry(Part.LineSegment(App.Vector(292, 40, 0), App.Vector(0, 40, 0)), False)
sketch17.addConstraint(Sketcher.Constraint("Coincident", 0, 2, 1, 1))
sketch17.addConstraint(Sketcher.Constraint("Coincident", 1, 2, 2, 1))
sketch17.addConstraint(Sketcher.Constraint("Coincident", 2, 2, 3, 1))
sketch17.addConstraint(Sketcher.Constraint("Coincident", 3, 2, 0, 1))
sketch17.addConstraint(Sketcher.Constraint("Vertical", 0))
sketch17.addConstraint(Sketcher.Constraint("Horizontal", 1))
sketch17.addConstraint(Sketcher.Constraint("Vertical", 2))
sketch17.addConstraint(Sketcher.Constraint("Horizontal", 3))
sketch17.addConstraint(Sketcher.Constraint("PointOnObject", 0, 2, -2))
sketch17.addConstraint(Sketcher.Constraint("DistanceY", 0, 2, 0, 1, 20.0))
sketch17.addConstraint(Sketcher.Constraint("DistanceY", -1, 1, 0, 2, 20.0))
sketch17.addConstraint(Sketcher.Constraint("DistanceX", 1, 1, 1, 2, 292.0))
pad5 = doc.addObject("PartDesign::Pad", "Pad004")
body.addObject(pad5)
pad5.Profile = sketch17
pad5.Length = 360
pad5.Reversed = True

# Sketch on XZ plane
sketch18 = doc.addObject("Sketcher::SketchObject", "Sketch017")
body.addObject(sketch18)
sketch18.AttachmentSupport = (doc.XZ_Plane, [""])
sketch18.MapMode = "FlatFace"
sketch18.AttachmentOffset = App.Placement(App.Vector(0, 0, -20), App.Rotation())
sketch18.addGeometry(Part.LineSegment(App.Vector(272, 340, 0), App.Vector(20, 340, 0)), False)
sketch18.addGeometry(Part.LineSegment(App.Vector(20, 340, 0), App.Vector(20, 20, 0)), False)
sketch18.addGeometry(Part.LineSegment(App.Vector(20, 20, 0), App.Vector(272, 20, 0)), False)
sketch18.addGeometry(Part.LineSegment(App.Vector(272, 20, 0), App.Vector(272, 340, 0)), False)
sketch18.addConstraint(Sketcher.Constraint("Coincident", 0, 2, 1, 1))
sketch18.addConstraint(Sketcher.Constraint("Coincident", 1, 2, 2, 1))
sketch18.addConstraint(Sketcher.Constraint("Coincident", 2, 2, 3, 1))
sketch18.addConstraint(Sketcher.Constraint("Coincident", 3, 2, 0, 1))
sketch18.addConstraint(Sketcher.Constraint("Horizontal", 0))
sketch18.addConstraint(Sketcher.Constraint("Vertical", 1))
sketch18.addConstraint(Sketcher.Constraint("Horizontal", 2))
sketch18.addConstraint(Sketcher.Constraint("Vertical", 3))
sketch18.addConstraint(Sketcher.Constraint("DistanceX", 0, 2, 0, 1, 252.0))
sketch18.addConstraint(Sketcher.Constraint("DistanceY", 1, 2, 1, 1, 320.0))
sketch18.addConstraint(Sketcher.Constraint("DistanceX", -1, 1, 0, 2, 20.0))
sketch18.addConstraint(Sketcher.Constraint("DistanceY", -1, 1, 0, 2, 340.0))
pocket13 = doc.addObject("PartDesign::Pocket", "Pocket012")
body.addObject(pocket13)
pocket13.Profile = sketch18
pocket13.Length = 60

doc.recompute()
